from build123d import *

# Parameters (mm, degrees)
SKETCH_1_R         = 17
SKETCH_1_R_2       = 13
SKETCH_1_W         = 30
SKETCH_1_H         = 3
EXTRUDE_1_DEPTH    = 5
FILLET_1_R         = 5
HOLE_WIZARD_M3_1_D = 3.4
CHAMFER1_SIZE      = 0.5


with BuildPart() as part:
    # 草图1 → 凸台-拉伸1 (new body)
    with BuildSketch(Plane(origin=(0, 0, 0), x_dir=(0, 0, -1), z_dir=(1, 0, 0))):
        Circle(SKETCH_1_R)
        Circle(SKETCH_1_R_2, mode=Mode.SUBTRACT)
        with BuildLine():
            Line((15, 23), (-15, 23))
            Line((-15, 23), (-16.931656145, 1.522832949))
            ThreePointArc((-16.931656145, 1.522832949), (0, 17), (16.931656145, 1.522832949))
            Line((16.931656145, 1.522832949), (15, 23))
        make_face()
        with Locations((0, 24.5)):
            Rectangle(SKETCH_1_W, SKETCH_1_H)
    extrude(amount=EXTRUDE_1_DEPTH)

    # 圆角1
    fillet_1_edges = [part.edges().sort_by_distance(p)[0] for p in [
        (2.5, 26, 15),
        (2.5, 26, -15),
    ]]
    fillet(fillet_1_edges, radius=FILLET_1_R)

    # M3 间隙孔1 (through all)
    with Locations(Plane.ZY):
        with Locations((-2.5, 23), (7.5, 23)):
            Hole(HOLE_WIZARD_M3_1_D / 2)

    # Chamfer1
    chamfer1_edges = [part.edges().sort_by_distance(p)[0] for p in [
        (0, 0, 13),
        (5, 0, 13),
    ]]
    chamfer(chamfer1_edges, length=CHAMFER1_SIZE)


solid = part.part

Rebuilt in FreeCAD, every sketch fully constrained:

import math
import FreeCAD as App
import Part
import Sketcher
Q = App.Units.Quantity


def edges_at(feature, points):
    """Names of the edges that pass closest to the given points."""
    edges = feature.Shape.Edges
    near = lambda p: min(range(len(edges)), key=lambda i: edges[i].distToShape(Part.Vertex(*p))[0])
    return sorted({f"Edge{near(p) + 1}" for p in points})

doc = App.newDocument("Part")
body = doc.addObject("PartDesign::Body", "Body")

sketch1 = doc.addObject("Sketcher::SketchObject", "Sketch")
body.addObject(sketch1)
sketch1.AttachmentSupport = (doc.YZ_Plane, [""])
sketch1.MapMode = "FlatFace"
sketch1.addGeometry(Part.LineSegment(App.Vector(1.5, -16.9, 0), App.Vector(23, -15, 0)), False)
sketch1.addGeometry(Part.LineSegment(App.Vector(23, -15, 0), App.Vector(26, -15, 0)), False)
sketch1.addGeometry(Part.LineSegment(App.Vector(26, -15, 0), App.Vector(26, 15, 0)), False)
sketch1.addGeometry(Part.LineSegment(App.Vector(26, 15, 0), App.Vector(23, 15, 0)), False)
sketch1.addGeometry(Part.LineSegment(App.Vector(23, 15, 0), App.Vector(1.5, 16.9, 0)), False)
sketch1.addGeometry(Part.ArcOfCircle(Part.Circle(App.Vector(0, 0, 0), App.Vector(0, 0, 1), 17), math.radians(85), math.radians(275)), False)
sketch1.addGeometry(Part.Circle(App.Vector(0, 0, 0), App.Vector(0, 0, 1), 13), False)
sketch1.addConstraint(Sketcher.Constraint("Coincident", 0, 2, 1, 1))
sketch1.addConstraint(Sketcher.Constraint("Coincident", 1, 2, 2, 1))
sketch1.addConstraint(Sketcher.Constraint("Coincident", 2, 2, 3, 1))
sketch1.addConstraint(Sketcher.Constraint("Coincident", 3, 2, 4, 1))
sketch1.addConstraint(Sketcher.Constraint("Tangent", 4, 2, 5, 1))
sketch1.addConstraint(Sketcher.Constraint("Tangent", 5, 2, 0, 1))
sketch1.addConstraint(Sketcher.Constraint("Horizontal", 1))
sketch1.addConstraint(Sketcher.Constraint("Vertical", 2))
sketch1.addConstraint(Sketcher.Constraint("Horizontal", 3))
sketch1.addConstraint(Sketcher.Constraint("Coincident", 5, 3, -1, 1))
sketch1.addConstraint(Sketcher.Constraint("Coincident", 6, 3, -1, 1))
sketch1.addConstraint(Sketcher.Constraint("Symmetric", 0, 2, 3, 2, -1))
sketch1.addConstraint(Sketcher.Constraint("Diameter", 6, Q("26 mm")))
sketch1.addConstraint(Sketcher.Constraint("Radius", 5, Q("17 mm")))
sketch1.addConstraint(Sketcher.Constraint("DistanceX", 1, 1, 1, 2, Q("3 mm")))
sketch1.addConstraint(Sketcher.Constraint("DistanceY", 2, 1, 2, 2, Q("30 mm")))
sketch1.addConstraint(Sketcher.Constraint("DistanceX", -1, 1, 0, 2, Q("23 mm")))
pad1 = doc.addObject("PartDesign::Pad", "Pad")
body.addObject(pad1)
pad1.Profile = sketch1
pad1.Length = 5
doc.recompute()

fillet = doc.addObject("PartDesign::Fillet", "Fillet")
body.addObject(fillet)
fillet.Base = (pad1, edges_at(pad1, [(2.5, 26, 15), (2.5, 26, -15)]))
fillet.Radius = 5

sketch2 = doc.addObject("Sketcher::SketchObject", "Sketch001")
body.addObject(sketch2)
sketch2.AttachmentSupport = (doc.YZ_Plane, [""])
sketch2.MapMode = "FlatFace"
sketch2.addGeometry(Part.Circle(App.Vector(23, -2.5, 0), App.Vector(0, 0, 1), 1.7), False)
sketch2.addGeometry(Part.Circle(App.Vector(23, 7.5, 0), App.Vector(0, 0, 1), 1.7), False)
sketch2.addConstraint(Sketcher.Constraint("Equal", 0, 1))
sketch2.addConstraint(Sketcher.Constraint("Vertical", 0, 3, 1, 3))
sketch2.addConstraint(Sketcher.Constraint("Diameter", 0, Q("3.4 mm")))
sketch2.addConstraint(Sketcher.Constraint("DistanceX", -1, 1, 0, 3, Q("23 mm")))
sketch2.addConstraint(Sketcher.Constraint("DistanceY", 0, 3, 1, 3, Q("10 mm")))
sketch2.addConstraint(Sketcher.Constraint("DistanceY", 0, 3, -1, 1, Q("2.5 mm")))
doc.recompute()
hole = doc.addObject("PartDesign::Hole", "Hole")
body.addObject(hole)
hole.Profile = sketch2
hole.ThreadType = "None"
hole.Diameter = 3.4
hole.DepthType = "ThroughAll"
hole.Reversed = True
doc.recompute()

chamfer = doc.addObject("PartDesign::Chamfer", "Chamfer")
body.addObject(chamfer)
chamfer.Base = (hole, edges_at(hole, [(0, 0, 13), (5, 0, 13)]))
chamfer.Size = 0.5

doc.recompute()
